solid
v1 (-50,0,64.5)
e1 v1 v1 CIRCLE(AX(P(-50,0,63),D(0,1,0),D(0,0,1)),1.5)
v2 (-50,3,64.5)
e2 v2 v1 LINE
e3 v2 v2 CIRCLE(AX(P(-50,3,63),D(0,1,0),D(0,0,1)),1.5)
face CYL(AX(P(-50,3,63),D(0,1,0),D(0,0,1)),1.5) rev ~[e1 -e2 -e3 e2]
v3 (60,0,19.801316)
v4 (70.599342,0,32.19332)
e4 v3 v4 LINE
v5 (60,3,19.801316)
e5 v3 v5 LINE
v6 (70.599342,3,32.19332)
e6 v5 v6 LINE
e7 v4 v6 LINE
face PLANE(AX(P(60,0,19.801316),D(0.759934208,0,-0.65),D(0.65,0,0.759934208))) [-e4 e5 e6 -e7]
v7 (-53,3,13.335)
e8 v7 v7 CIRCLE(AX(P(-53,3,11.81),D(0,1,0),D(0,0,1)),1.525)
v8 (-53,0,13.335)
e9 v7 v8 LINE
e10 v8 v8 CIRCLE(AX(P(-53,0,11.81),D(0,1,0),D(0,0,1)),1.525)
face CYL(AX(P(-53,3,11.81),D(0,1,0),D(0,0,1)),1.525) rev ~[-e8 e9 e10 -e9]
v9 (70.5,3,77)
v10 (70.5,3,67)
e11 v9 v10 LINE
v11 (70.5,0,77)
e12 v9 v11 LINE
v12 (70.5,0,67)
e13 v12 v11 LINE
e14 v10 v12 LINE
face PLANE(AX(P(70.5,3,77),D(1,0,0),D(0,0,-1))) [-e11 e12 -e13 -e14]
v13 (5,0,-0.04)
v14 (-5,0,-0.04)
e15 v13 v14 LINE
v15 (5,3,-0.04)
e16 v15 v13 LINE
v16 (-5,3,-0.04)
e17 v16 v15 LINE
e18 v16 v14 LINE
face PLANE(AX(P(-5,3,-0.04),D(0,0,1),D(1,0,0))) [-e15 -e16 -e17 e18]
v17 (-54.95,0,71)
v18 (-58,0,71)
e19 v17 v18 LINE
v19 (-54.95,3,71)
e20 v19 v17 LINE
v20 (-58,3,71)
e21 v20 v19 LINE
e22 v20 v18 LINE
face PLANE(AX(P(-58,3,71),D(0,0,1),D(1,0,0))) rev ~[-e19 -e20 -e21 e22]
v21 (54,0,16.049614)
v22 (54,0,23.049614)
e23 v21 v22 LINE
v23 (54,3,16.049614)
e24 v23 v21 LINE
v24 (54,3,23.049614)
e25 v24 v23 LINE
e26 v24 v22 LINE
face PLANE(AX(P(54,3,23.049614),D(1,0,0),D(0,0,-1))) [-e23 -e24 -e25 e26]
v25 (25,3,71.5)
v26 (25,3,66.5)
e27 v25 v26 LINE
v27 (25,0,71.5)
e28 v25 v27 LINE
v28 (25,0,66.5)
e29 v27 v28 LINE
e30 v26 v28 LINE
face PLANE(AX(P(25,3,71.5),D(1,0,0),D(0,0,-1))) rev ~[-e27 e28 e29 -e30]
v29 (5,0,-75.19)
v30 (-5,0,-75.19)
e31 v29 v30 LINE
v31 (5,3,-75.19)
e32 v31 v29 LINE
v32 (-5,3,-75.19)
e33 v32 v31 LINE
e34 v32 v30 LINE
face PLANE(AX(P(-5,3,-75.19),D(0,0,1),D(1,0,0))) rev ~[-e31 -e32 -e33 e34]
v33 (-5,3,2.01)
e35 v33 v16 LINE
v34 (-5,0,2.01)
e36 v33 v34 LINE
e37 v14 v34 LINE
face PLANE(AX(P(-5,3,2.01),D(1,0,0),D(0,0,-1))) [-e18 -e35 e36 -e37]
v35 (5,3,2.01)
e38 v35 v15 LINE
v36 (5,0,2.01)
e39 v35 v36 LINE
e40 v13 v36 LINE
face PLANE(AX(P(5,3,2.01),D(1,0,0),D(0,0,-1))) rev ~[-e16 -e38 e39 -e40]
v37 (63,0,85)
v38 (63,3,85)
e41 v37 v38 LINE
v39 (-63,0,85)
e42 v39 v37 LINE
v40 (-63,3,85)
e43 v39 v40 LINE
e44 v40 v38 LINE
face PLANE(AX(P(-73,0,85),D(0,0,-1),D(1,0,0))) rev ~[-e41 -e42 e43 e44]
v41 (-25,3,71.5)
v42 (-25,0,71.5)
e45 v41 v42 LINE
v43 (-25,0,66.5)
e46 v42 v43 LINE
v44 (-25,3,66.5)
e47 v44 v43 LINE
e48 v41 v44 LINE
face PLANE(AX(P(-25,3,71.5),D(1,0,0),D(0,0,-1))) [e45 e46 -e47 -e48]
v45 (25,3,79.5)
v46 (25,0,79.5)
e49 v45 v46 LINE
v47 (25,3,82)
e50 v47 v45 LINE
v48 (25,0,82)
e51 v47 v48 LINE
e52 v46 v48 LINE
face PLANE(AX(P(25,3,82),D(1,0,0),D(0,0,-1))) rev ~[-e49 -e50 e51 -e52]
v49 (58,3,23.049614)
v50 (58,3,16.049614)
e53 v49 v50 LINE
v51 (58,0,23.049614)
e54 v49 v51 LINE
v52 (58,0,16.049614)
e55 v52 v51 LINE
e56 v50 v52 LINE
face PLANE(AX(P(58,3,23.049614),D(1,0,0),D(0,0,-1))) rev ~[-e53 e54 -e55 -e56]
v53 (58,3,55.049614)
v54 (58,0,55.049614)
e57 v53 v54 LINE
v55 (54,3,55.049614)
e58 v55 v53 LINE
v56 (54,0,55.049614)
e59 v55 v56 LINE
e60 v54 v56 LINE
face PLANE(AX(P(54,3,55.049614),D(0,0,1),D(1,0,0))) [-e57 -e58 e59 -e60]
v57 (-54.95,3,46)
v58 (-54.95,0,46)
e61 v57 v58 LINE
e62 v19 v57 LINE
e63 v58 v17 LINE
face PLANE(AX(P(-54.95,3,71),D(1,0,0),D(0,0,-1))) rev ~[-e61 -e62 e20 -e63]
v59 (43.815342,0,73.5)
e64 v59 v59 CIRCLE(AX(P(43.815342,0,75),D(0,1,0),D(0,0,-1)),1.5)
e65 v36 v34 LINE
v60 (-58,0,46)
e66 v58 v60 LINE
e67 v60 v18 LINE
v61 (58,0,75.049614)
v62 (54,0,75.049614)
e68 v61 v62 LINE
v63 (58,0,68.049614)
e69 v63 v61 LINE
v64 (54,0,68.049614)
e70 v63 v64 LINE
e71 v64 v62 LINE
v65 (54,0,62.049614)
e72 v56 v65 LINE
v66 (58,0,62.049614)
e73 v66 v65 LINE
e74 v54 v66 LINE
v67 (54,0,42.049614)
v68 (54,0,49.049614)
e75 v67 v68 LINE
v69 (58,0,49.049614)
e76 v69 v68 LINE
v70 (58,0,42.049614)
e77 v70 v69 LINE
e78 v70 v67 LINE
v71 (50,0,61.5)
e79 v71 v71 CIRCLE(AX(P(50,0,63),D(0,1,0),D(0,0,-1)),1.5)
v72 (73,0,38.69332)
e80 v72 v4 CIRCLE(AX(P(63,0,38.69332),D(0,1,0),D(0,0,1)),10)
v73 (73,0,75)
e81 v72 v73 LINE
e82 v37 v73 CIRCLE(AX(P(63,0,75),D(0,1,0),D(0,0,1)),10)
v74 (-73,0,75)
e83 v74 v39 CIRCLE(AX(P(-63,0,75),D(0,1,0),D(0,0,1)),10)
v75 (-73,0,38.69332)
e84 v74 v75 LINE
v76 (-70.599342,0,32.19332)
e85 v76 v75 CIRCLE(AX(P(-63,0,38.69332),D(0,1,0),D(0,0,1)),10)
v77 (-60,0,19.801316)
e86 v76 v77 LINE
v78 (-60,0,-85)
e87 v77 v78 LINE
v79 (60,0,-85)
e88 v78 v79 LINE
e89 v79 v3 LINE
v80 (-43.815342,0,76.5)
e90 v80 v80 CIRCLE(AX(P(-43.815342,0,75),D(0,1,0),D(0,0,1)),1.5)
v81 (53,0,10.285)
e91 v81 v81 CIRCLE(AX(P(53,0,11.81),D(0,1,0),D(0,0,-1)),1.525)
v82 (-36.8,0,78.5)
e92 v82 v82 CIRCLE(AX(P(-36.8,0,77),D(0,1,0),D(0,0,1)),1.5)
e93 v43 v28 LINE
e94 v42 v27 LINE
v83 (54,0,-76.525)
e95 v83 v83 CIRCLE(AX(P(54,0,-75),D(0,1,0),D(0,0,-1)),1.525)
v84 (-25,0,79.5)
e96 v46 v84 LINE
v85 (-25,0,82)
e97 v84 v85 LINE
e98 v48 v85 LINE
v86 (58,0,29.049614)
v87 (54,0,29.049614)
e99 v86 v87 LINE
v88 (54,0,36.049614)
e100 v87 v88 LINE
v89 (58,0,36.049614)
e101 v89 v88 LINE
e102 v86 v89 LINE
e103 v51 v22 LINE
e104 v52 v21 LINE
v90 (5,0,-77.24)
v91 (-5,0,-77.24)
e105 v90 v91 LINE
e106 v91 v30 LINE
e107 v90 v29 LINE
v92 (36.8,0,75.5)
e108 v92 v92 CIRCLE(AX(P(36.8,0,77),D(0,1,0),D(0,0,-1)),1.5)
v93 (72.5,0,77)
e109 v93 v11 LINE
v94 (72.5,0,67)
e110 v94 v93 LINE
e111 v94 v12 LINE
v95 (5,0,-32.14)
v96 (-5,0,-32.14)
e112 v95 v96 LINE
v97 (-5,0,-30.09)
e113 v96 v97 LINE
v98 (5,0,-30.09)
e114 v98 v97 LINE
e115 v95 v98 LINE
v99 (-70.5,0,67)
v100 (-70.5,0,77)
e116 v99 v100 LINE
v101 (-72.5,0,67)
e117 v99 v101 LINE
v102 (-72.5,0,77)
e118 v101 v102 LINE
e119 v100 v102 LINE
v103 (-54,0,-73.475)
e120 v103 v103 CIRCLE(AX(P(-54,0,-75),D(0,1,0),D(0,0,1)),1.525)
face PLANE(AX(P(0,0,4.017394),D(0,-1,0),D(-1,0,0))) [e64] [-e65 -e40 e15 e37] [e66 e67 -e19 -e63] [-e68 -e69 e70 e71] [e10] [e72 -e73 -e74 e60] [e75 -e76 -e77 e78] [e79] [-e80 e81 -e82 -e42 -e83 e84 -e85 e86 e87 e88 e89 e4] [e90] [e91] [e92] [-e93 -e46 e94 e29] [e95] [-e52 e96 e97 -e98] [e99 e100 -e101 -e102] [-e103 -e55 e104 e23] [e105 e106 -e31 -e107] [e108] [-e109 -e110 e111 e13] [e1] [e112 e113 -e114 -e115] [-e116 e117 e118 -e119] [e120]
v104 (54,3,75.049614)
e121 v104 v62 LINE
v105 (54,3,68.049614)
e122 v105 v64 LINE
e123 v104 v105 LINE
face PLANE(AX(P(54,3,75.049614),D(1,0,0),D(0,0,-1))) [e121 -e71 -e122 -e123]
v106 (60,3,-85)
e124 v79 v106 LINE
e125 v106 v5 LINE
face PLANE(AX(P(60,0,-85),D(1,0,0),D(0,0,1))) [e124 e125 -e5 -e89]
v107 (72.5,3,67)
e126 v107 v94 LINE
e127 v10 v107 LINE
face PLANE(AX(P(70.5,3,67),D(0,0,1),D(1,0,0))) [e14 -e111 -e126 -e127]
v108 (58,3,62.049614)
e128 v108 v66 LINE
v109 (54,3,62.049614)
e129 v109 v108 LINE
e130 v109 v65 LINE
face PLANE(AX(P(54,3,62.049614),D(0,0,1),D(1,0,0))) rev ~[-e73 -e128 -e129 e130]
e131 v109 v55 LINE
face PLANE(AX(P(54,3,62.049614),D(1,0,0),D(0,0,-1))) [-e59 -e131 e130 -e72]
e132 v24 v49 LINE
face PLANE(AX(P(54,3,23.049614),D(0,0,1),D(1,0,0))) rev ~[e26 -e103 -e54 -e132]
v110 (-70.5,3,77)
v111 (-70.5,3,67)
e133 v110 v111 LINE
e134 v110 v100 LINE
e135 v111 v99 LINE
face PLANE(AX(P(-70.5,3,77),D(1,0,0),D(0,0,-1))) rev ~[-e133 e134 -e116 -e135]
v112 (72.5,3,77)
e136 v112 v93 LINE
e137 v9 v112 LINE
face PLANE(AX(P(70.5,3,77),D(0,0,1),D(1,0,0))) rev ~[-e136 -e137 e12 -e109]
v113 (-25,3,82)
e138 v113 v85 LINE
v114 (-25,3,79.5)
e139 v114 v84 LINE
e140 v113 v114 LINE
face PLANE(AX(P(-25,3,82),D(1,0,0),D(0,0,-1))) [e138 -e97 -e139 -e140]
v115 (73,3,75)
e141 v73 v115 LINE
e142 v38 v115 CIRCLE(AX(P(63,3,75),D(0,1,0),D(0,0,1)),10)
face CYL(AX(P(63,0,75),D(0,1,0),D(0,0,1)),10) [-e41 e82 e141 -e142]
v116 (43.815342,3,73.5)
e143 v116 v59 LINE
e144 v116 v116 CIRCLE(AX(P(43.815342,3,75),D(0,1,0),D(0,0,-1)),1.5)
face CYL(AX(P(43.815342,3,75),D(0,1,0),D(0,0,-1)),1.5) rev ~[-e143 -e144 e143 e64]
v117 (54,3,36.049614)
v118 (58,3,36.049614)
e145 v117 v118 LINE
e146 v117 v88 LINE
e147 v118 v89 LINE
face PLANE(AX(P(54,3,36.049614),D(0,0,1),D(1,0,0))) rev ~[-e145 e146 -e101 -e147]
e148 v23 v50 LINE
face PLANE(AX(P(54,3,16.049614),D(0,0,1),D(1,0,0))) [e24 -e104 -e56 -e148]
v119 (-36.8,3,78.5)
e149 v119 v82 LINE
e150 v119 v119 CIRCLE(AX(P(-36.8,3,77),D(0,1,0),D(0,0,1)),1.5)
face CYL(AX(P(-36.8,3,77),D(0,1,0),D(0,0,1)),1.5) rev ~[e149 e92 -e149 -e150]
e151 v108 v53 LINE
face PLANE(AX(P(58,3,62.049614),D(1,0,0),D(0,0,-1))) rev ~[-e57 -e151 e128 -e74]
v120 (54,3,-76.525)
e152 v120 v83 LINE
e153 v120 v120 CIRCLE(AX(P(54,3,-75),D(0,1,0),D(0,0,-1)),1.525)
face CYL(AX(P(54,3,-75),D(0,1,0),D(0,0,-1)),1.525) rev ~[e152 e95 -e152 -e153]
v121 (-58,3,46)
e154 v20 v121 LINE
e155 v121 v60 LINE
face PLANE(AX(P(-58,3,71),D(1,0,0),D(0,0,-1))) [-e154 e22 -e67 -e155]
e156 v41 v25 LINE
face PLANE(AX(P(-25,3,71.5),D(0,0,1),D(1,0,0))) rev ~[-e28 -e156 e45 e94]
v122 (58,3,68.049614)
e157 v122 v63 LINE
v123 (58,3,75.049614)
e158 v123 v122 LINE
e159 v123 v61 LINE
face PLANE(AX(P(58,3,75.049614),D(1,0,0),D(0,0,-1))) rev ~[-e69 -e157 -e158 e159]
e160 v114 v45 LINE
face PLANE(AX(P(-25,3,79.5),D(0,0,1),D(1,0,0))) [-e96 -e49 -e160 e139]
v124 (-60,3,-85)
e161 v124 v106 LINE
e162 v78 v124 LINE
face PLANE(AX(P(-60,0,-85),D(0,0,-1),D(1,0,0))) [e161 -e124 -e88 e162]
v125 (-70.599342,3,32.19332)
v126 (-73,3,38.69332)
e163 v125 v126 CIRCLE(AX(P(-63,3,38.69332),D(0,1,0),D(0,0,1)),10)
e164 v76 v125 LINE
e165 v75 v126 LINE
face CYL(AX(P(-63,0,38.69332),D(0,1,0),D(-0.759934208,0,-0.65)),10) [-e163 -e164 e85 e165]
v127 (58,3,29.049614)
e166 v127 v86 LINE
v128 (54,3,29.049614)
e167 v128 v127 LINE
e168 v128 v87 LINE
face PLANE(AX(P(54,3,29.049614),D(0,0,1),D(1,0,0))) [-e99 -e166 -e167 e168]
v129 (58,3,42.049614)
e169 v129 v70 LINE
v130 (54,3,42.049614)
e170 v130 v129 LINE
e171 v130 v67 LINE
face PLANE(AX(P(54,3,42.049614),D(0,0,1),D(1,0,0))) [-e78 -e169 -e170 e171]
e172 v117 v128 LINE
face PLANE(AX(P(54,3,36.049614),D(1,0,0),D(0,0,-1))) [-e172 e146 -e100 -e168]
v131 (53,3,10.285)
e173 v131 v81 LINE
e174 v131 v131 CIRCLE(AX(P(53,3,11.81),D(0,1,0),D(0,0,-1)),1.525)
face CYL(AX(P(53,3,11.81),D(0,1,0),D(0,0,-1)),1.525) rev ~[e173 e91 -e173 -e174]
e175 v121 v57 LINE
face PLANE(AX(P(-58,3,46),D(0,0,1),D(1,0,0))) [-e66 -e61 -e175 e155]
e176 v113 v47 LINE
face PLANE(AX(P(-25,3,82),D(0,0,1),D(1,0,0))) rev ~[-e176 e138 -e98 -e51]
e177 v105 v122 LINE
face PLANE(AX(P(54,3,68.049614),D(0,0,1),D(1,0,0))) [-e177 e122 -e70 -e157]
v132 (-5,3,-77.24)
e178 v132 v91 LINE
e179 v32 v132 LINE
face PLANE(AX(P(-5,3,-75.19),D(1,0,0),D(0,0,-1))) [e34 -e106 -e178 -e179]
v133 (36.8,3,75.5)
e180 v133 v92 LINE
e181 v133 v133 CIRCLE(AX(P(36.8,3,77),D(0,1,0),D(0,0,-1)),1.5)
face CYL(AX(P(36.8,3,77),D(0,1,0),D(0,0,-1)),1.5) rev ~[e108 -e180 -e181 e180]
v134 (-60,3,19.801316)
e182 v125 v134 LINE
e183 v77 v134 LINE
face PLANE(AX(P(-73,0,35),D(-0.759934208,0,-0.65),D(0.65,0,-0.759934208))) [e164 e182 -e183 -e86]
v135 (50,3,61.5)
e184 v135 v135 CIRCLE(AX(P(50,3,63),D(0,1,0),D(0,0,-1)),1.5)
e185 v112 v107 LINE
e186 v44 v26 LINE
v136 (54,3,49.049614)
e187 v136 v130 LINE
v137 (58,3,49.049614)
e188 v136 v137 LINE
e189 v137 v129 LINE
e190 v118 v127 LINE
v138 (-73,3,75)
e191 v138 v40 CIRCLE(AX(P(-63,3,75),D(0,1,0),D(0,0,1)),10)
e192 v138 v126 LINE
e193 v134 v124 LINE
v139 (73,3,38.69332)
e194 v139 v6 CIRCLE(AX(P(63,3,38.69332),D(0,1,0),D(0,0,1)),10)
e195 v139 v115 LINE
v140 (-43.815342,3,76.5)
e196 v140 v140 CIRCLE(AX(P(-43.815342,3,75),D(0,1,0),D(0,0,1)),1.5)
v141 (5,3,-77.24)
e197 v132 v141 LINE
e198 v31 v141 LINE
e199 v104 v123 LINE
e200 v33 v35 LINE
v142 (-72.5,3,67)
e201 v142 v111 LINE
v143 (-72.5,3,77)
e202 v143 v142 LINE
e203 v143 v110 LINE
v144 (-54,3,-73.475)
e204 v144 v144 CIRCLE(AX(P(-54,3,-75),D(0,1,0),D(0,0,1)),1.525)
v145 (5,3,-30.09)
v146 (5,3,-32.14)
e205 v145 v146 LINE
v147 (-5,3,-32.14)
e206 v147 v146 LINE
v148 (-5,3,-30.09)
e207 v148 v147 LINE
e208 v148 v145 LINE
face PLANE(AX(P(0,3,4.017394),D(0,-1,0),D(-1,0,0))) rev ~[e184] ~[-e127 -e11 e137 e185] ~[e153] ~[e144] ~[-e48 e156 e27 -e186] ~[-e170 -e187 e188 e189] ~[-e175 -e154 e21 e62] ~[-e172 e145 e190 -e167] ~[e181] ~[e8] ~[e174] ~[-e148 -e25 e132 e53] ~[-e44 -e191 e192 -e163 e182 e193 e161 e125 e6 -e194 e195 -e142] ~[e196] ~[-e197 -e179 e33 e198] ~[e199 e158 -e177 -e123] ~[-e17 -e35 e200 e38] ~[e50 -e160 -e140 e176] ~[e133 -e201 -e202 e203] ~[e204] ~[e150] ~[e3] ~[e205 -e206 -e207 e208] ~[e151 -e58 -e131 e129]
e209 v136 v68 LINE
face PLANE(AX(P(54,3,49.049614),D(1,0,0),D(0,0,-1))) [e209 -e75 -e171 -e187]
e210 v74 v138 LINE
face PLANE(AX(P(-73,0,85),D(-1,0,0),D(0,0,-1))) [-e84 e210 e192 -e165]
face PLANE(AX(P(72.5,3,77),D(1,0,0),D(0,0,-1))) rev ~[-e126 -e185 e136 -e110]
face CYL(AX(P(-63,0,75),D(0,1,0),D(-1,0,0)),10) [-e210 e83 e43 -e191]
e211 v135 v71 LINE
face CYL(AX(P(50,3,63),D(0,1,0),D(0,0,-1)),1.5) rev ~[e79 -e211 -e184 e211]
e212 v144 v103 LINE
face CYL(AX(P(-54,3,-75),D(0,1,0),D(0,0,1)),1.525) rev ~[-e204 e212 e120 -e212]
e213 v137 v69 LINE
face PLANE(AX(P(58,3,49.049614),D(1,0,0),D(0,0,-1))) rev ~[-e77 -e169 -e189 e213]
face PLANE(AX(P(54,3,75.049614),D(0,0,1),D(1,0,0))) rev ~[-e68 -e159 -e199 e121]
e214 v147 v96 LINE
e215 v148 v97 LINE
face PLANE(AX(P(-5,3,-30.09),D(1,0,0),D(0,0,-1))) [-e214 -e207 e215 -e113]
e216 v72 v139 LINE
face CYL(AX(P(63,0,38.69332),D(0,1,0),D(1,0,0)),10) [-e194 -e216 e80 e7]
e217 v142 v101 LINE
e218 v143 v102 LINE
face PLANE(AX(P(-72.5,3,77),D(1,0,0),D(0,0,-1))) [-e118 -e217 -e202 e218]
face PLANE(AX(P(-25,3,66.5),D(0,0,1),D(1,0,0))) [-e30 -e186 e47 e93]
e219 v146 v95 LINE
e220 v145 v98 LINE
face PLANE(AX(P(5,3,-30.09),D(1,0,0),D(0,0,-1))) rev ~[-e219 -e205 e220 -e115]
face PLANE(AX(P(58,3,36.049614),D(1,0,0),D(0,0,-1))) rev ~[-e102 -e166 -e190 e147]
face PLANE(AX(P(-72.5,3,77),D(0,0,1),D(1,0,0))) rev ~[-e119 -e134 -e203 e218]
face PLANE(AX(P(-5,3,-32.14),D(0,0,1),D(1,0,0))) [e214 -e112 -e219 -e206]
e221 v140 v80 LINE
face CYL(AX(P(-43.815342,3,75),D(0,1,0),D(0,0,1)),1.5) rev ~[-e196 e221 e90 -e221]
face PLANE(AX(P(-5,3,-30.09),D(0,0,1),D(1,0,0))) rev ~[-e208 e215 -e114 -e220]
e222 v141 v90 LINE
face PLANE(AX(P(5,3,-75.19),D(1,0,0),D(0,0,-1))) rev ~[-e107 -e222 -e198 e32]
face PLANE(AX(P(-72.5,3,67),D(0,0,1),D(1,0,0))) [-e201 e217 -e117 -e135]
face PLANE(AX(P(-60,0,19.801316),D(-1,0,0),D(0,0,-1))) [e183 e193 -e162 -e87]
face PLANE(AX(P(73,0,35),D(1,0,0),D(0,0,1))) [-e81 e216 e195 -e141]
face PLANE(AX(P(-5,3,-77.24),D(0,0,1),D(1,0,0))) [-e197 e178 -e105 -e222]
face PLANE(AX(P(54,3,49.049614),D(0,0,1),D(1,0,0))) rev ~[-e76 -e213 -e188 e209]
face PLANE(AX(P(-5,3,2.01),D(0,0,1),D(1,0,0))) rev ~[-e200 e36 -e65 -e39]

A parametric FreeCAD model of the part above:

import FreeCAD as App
import Part
import Sketcher

V = App.Vector


def edges_at(feature, points):
    """Names of the edges that pass closest to the given points."""
    edges = feature.Shape.Edges
    near = lambda p: min(range(len(edges)), key=lambda i: edges[i].distToShape(Part.Vertex(*p))[0])
    return sorted({f"Edge{near(p) + 1}" for p in points})

doc = App.newDocument("Part")
params = doc.addObject("Spreadsheet::Sheet", "Params")
for row, (alias, value) in enumerate([
    ("sketch1_width", "146 mm"),
    ("sketch1_width2", "120 mm"),
    ("sketch1_height", "50 mm"),
    ("sketch1_length", "20 mm"),
    ("pad1_length", "3 mm"),
    ("sketch2_diameter", "3.05 mm"),
    ("sketch3_width", "10 mm"),
    ("sketch3_height", "2.05 mm"),
    ("sketch4_diameter", "3 mm"),
    ("pocket3_length", "3 mm"),
    ("sketch5_diameter", "3 mm"),
    ("sketch5_width", "50 mm"),
    ("sketch5_height", "5 mm"),
    ("pocket4_length", "3 mm"),
    ("sketch6_width", "4 mm"),
    ("sketch6_height", "7 mm"),
    ("pocket5_length", "10 mm"),
    ("sketch7_width", "50 mm"),
    ("sketch7_height", "25 mm"),
    ("sketch7_height2", "2.5 mm"),
    ("sketch7_width2", "3.05 mm"),
    ("pocket6_length", "10 mm"),
    ("fillet_radius", "10 mm"),
    ("sketch8_width", "2 mm"),
    ("sketch8_height", "10 mm"),
    ("pocket7_length", "10 mm"),
], start=1):
    params.set(f"A{row}", alias)
    params.set(f"B{row}", "=" + value)
    params.setAlias(f"B{row}", alias)

body = doc.addObject("PartDesign::Body", "Body")

sketch1 = doc.addObject("Sketcher::SketchObject", "Sketch")
body.addObject(sketch1)
sketch1.AttachmentSupport = (doc.XZ_Plane, [""])
sketch1.MapMode = "FlatFace"
sketch1.addGeometry(Part.LineSegment(V(-60, 20, 0), V(-73, 35, 0)), False)
sketch1.addGeometry(Part.LineSegment(V(-73, 35, 0), V(-73, 85, 0)), False)
sketch1.addGeometry(Part.LineSegment(V(-73, 85, 0), V(73, 85, 0)), False)
sketch1.addGeometry(Part.LineSegment(V(73, 85, 0), V(73, 35, 0)), False)
sketch1.addGeometry(Part.LineSegment(V(73, 35, 0), V(60, 20, 0)), False)
sketch1.addGeometry(Part.LineSegment(V(60, 20, 0), V(60, -85, 0)), False)
sketch1.addGeometry(Part.LineSegment(V(60, -85, 0), V(-60, -85, 0)), False)
sketch1.addGeometry(Part.LineSegment(V(-60, -85, 0), V(-60, 20, 0)), False)
sketch1.addConstraint(Sketcher.Constraint("Coincident", 0, 2, 1, 1))
sketch1.addConstraint(Sketcher.Constraint("Coincident", 1, 2, 2, 1))
sketch1.addConstraint(Sketcher.Constraint("Coincident", 2, 2, 3, 1))
sketch1.addConstraint(Sketcher.Constraint("Coincident", 3, 2, 4, 1))
sketch1.addConstraint(Sketcher.Constraint("Coincident", 4, 2, 5, 1))
sketch1.addConstraint(Sketcher.Constraint("Coincident", 5, 2, 6, 1))
sketch1.addConstraint(Sketcher.Constraint("Coincident", 6, 2, 7, 1))
sketch1.addConstraint(Sketcher.Constraint("Coincident", 7, 2, 0, 1))
sketch1.addConstraint(Sketcher.Constraint("Vertical", 1))
sketch1.addConstraint(Sketcher.Constraint("Horizontal", 2))
sketch1.addConstraint(Sketcher.Constraint("Vertical", 3))
sketch1.addConstraint(Sketcher.Constraint("Vertical", 5))
sketch1.addConstraint(Sketcher.Constraint("Horizontal", 6))
sketch1.addConstraint(Sketcher.Constraint("Vertical", 7))
sketch1.addConstraint(Sketcher.Constraint("Symmetric", 0, 2, 3, 2, -2))
sketch1.addConstraint(Sketcher.Constraint("Symmetric", 4, 2, 7, 2, -2))
sketch1.addConstraint(Sketcher.Constraint("DistanceX", 2, 1, 2, 2, 146.0))
sketch1.addConstraint(Sketcher.Constraint("DistanceX", 6, 2, 6, 1, 120.0))
sketch1.addConstraint(Sketcher.Constraint("DistanceY", 1, 1, 1, 2, 50.0))
sketch1.addConstraint(Sketcher.Constraint("Distance", 0, 20.0))
sketch1.addConstraint(Sketcher.Constraint("DistanceY", -1, 1, 0, 2, 35.0))
sketch1.addConstraint(Sketcher.Constraint("DistanceY", 5, 2, -1, 1, 85.0))
sketch1.setExpression("Constraints[16]", "Params.sketch1_width")
sketch1.setExpression("Constraints[17]", "Params.sketch1_width2")
sketch1.setExpression("Constraints[18]", "Params.sketch1_height")
sketch1.setExpression("Constraints[19]", "Params.sketch1_length")
pad1 = doc.addObject("PartDesign::Pad", "Pad")
body.addObject(pad1)
pad1.Profile = sketch1
pad1.setExpression("Length", "Params.pad1_length")
pad1.Reversed = True

sketch2 = doc.addObject("Sketcher::SketchObject", "Sketch001")
body.addObject(sketch2)
sketch2.AttachmentSupport = (doc.XZ_Plane, [""])
sketch2.MapMode = "FlatFace"
sketch2.AttachmentOffset = App.Placement(V(0, 0, -3), App.Rotation())
sketch2.addGeometry(Part.Circle(V(-53, 11.8, 0), V(0, 0, 1), 1.5), False)
sketch2.addGeometry(Part.Circle(V(-54, -75, 0), V(0, 0, 1), 1.5), False)
sketch2.addGeometry(Part.Circle(V(53, 11.8, 0), V(0, 0, 1), 1.5), False)
sketch2.addGeometry(Part.Circle(V(54, -75, 0), V(0, 0, 1), 1.5), False)
sketch2.addConstraint(Sketcher.Constraint("Equal", 0, 1))
sketch2.addConstraint(Sketcher.Constraint("Equal", 1, 2))
sketch2.addConstraint(Sketcher.Constraint("Equal", 2, 3))
sketch2.addConstraint(Sketcher.Constraint("Symmetric", 0, 3, 2, 3, -2))
sketch2.addConstraint(Sketcher.Constraint("Symmetric", 1, 3, 3, 3, -2))
sketch2.addConstraint(Sketcher.Constraint("Diameter", 0, 3.05))
sketch2.addConstraint(Sketcher.Constraint("DistanceX", 0, 3, -1, 1, 53.0))
sketch2.addConstraint(Sketcher.Constraint("DistanceX", 1, 3, -1, 1, 54.0))
sketch2.addConstraint(Sketcher.Constraint("DistanceY", 1, 3, -1, 1, 75.0))
sketch2.addConstraint(Sketcher.Constraint("DistanceY", -1, 1, 0, 3, 11.81))
sketch2.setExpression("Constraints[5]", "Params.sketch2_diameter")
pocket1 = doc.addObject("PartDesign::Pocket", "Pocket")
body.addObject(pocket1)
pocket1.Profile = sketch2
pocket1.Type = "ThroughAll"
pocket1.Reversed = True

sketch3 = doc.addObject("Sketcher::SketchObject", "Sketch002")
body.addObject(sketch3)
sketch3.AttachmentSupport = (doc.XZ_Plane, [""])
sketch3.MapMode = "FlatFace"
sketch3.AttachmentOffset = App.Placement(V(0, 0, -3), App.Rotation())
sketch3.addGeometry(Part.LineSegment(V(-5, -32.1, 0), V(-5, -30.1, 0)), False)
sketch3.addGeometry(Part.LineSegment(V(-5, -30.1, 0), V(5, -30.1, 0)), False)
sketch3.addGeometry(Part.LineSegment(V(5, -30.1, 0), V(5, -32.1, 0)), False)
sketch3.addGeometry(Part.LineSegment(V(5, -32.1, 0), V(-5, -32.1, 0)), False)
sketch3.addGeometry(Part.LineSegment(V(-5, 0, 0), V(-5, 2, 0)), False)
sketch3.addGeometry(Part.LineSegment(V(-5, 2, 0), V(5, 2, 0)), False)
sketch3.addGeometry(Part.LineSegment(V(5, 2, 0), V(5, 0, 0)), False)
sketch3.addGeometry(Part.LineSegment(V(5, 0, 0), V(-5, 0, 0)), False)
sketch3.addGeometry(Part.LineSegment(V(-5, -77.2, 0), V(-5, -75.2, 0)), False)
sketch3.addGeometry(Part.LineSegment(V(-5, -75.2, 0), V(5, -75.2, 0)), False)
sketch3.addGeometry(Part.LineSegment(V(5, -75.2, 0), V(5, -77.2, 0)), False)
sketch3.addGeometry(Part.LineSegment(V(5, -77.2, 0), V(-5, -77.2, 0)), False)
sketch3.addConstraint(Sketcher.Constraint("Coincident", 0, 2, 1, 1))
sketch3.addConstraint(Sketcher.Constraint("Coincident", 1, 2, 2, 1))
sketch3.addConstraint(Sketcher.Constraint("Coincident", 2, 2, 3, 1))
sketch3.addConstraint(Sketcher.Constraint("Coincident", 3, 2, 0, 1))
sketch3.addConstraint(Sketcher.Constraint("Coincident", 4, 2, 5, 1))
sketch3.addConstraint(Sketcher.Constraint("Coincident", 5, 2, 6, 1))
sketch3.addConstraint(Sketcher.Constraint("Coincident", 6, 2, 7, 1))
sketch3.addConstraint(Sketcher.Constraint("Coincident", 7, 2, 4, 1))
sketch3.addConstraint(Sketcher.Constraint("Coincident", 8, 2, 9, 1))
sketch3.addConstraint(Sketcher.Constraint("Coincident", 9, 2, 10, 1))
sketch3.addConstraint(Sketcher.Constraint("Coincident", 10, 2, 11, 1))
sketch3.addConstraint(Sketcher.Constraint("Coincident", 11, 2, 8, 1))
sketch3.addConstraint(Sketcher.Constraint("Vertical", 0))
sketch3.addConstraint(Sketcher.Constraint("Horizontal", 1))
sketch3.addConstraint(Sketcher.Constraint("Vertical", 2))
sketch3.addConstraint(Sketcher.Constraint("Horizontal", 3))
sketch3.addConstraint(Sketcher.Constraint("Vertical", 4))
sketch3.addConstraint(Sketcher.Constraint("Horizontal", 5))
sketch3.addConstraint(Sketcher.Constraint("Vertical", 6))
sketch3.addConstraint(Sketcher.Constraint("Horizontal", 7))
sketch3.addConstraint(Sketcher.Constraint("Vertical", 8))
sketch3.addConstraint(Sketcher.Constraint("Horizontal", 9))
sketch3.addConstraint(Sketcher.Constraint("Vertical", 10))
sketch3.addConstraint(Sketcher.Constraint("Horizontal", 11))
sketch3.addConstraint(Sketcher.Constraint("Vertical", 3, 2, 4, 2))
sketch3.addConstraint(Sketcher.Constraint("Vertical", 2, 2, 5, 2))
sketch3.addConstraint(Sketcher.Constraint("Vertical", 7, 2, 8, 2))
sketch3.addConstraint(Sketcher.Constraint("Vertical", 6, 2, 9, 2))
sketch3.addConstraint(Sketcher.Constraint("Equal", 2, 4))
sketch3.addConstraint(Sketcher.Constraint("Equal", 6, 8))
sketch3.addConstraint(Sketcher.Constraint("DistanceX", 1, 1, 1, 2, 10.0))
sketch3.addConstraint(Sketcher.Constraint("DistanceX", 0, 2, -1, 1, 5.0))
sketch3.addConstraint(Sketcher.Constraint("DistanceY", 0, 1, 0, 2, 2.05))
sketch3.addConstraint(Sketcher.Constraint("DistanceY", 0, 2, 4, 2, 32.1))
sketch3.addConstraint(Sketcher.Constraint("DistanceY", 8, 2, 0, 2, 45.1))
sketch3.addConstraint(Sketcher.Constraint("DistanceY", 0, 2, -1, 1, 30.09))
sketch3.setExpression("Constraints[30]", "Params.sketch3_width")
sketch3.setExpression("Constraints[32]", "Params.sketch3_height")
pocket2 = doc.addObject("PartDesign::Pocket", "Pocket001")
body.addObject(pocket2)
pocket2.Profile = sketch3
pocket2.Type = "ThroughAll"
pocket2.Reversed = True

sketch4 = doc.addObject("Sketcher::SketchObject", "Sketch003")
body.addObject(sketch4)
sketch4.AttachmentSupport = (doc.XZ_Plane, [""])
sketch4.MapMode = "FlatFace"
sketch4.AttachmentOffset = App.Placement(V(0, 0, -3), App.Rotation())
sketch4.addGeometry(Part.Circle(V(-50, 63, 0), V(0, 0, 1), 1.5), False)
sketch4.addGeometry(Part.Circle(V(-43.8, 75, 0), V(0, 0, 1), 1.5), False)
sketch4.addGeometry(Part.Circle(V(43.8, 75, 0), V(0, 0, 1), 1.5), False)
sketch4.addGeometry(Part.Circle(V(50, 63, 0), V(0, 0, 1), 1.5), False)
sketch4.addConstraint(Sketcher.Constraint("Equal", 0, 1))
sketch4.addConstraint(Sketcher.Constraint("Equal", 1, 2))
sketch4.addConstraint(Sketcher.Constraint("Equal", 2, 3))
sketch4.addConstraint(Sketcher.Constraint("Symmetric", 1, 3, 2, 3, -2))
sketch4.addConstraint(Sketcher.Constraint("Symmetric", 0, 3, 3, 3, -2))
sketch4.addConstraint(Sketcher.Constraint("Diameter", 0, 3.0))
sketch4.addConstraint(Sketcher.Constraint("DistanceX", 0, 3, -1, 1, 50.0))
sketch4.addConstraint(Sketcher.Constraint("DistanceY", -1, 1, 0, 3, 63.0))
sketch4.addConstraint(Sketcher.Constraint("DistanceY", -1, 1, 1, 3, 75.0))
sketch4.addConstraint(Sketcher.Constraint("DistanceX", 1, 3, -1, 1, 43.815342))
sketch4.setExpression("Constraints[5]", "Params.sketch4_diameter")
pocket3 = doc.addObject("PartDesign::Pocket", "Pocket002")
body.addObject(pocket3)
pocket3.Profile = sketch4
pocket3.setExpression("Length", "Params.pocket3_length")
pocket3.Reversed = True

sketch5 = doc.addObject("Sketcher::SketchObject", "Sketch004")
body.addObject(sketch5)
sketch5.AttachmentSupport = (doc.XZ_Plane, [""])
sketch5.MapMode = "FlatFace"
sketch5.AttachmentOffset = App.Placement(V(0, 0, -3), App.Rotation())
sketch5.addGeometry(Part.Circle(V(-36.8, 77, 0), V(0, 0, 1), 1.5), False)
sketch5.addGeometry(Part.Circle(V(36.8, 77, 0), V(0, 0, 1), 1.5), False)
sketch5.addGeometry(Part.LineSegment(V(-25, 66.5, 0), V(-25, 71.5, 0)), False)
sketch5.addGeometry(Part.LineSegment(V(-25, 71.5, 0), V(25, 71.5, 0)), False)
sketch5.addGeometry(Part.LineSegment(V(25, 71.5, 0), V(25, 66.5, 0)), False)
sketch5.addGeometry(Part.LineSegment(V(25, 66.5, 0), V(-25, 66.5, 0)), False)
sketch5.addConstraint(Sketcher.Constraint("Coincident", 2, 2, 3, 1))
sketch5.addConstraint(Sketcher.Constraint("Coincident", 3, 2, 4, 1))
sketch5.addConstraint(Sketcher.Constraint("Coincident", 4, 2, 5, 1))
sketch5.addConstraint(Sketcher.Constraint("Coincident", 5, 2, 2, 1))
sketch5.addConstraint(Sketcher.Constraint("Vertical", 2))
sketch5.addConstraint(Sketcher.Constraint("Horizontal", 3))
sketch5.addConstraint(Sketcher.Constraint("Vertical", 4))
sketch5.addConstraint(Sketcher.Constraint("Horizontal", 5))
sketch5.addConstraint(Sketcher.Constraint("Equal", 0, 1))
sketch5.addConstraint(Sketcher.Constraint("Symmetric", 0, 3, 1, 3, -2))
sketch5.addConstraint(Sketcher.Constraint("Diameter", 0, 3.0))
sketch5.addConstraint(Sketcher.Constraint("DistanceX", 3, 1, 3, 2, 50.0))
sketch5.addConstraint(Sketcher.Constraint("DistanceY", 2, 1, 2, 2, 5.0))
sketch5.addConstraint(Sketcher.Constraint("DistanceY", -1, 1, 0, 3, 77.0))
sketch5.addConstraint(Sketcher.Constraint("DistanceX", 2, 2, -1, 1, 25.0))
sketch5.addConstraint(Sketcher.Constraint("DistanceX", 0, 3, -1, 1, 36.8))
sketch5.addConstraint(Sketcher.Constraint("DistanceY", -1, 1, 2, 2, 71.5))
sketch5.setExpression("Constraints[10]", "Params.sketch5_diameter")
sketch5.setExpression("Constraints[11]", "Params.sketch5_width")
sketch5.setExpression("Constraints[12]", "Params.sketch5_height")
pocket4 = doc.addObject("PartDesign::Pocket", "Pocket003")
body.addObject(pocket4)
pocket4.Profile = sketch5
pocket4.setExpression("Length", "Params.pocket4_length")
pocket4.Reversed = True

sketch6 = doc.addObject("Sketcher::SketchObject", "Sketch005")
body.addObject(sketch6)
sketch6.AttachmentSupport = (doc.XZ_Plane, [""])
sketch6.MapMode = "FlatFace"
sketch6.AttachmentOffset = App.Placement(V(0, 0, -3), App.Rotation())
sketch6.addGeometry(Part.LineSegment(V(54, 29, 0), V(54, 36, 0)), False)
sketch6.addGeometry(Part.LineSegment(V(54, 36, 0), V(58, 36, 0)), False)
sketch6.addGeometry(Part.LineSegment(V(58, 36, 0), V(58, 29, 0)), False)
sketch6.addGeometry(Part.LineSegment(V(58, 29, 0), V(54, 29, 0)), False)
sketch6.addGeometry(Part.LineSegment(V(54, 16, 0), V(54, 23, 0)), False)
sketch6.addGeometry(Part.LineSegment(V(54, 23, 0), V(58, 23, 0)), False)
sketch6.addGeometry(Part.LineSegment(V(58, 23, 0), V(58, 16, 0)), False)
sketch6.addGeometry(Part.LineSegment(V(58, 16, 0), V(54, 16, 0)), False)
sketch6.addGeometry(Part.LineSegment(V(54, 42, 0), V(54, 49, 0)), False)
sketch6.addGeometry(Part.LineSegment(V(54, 49, 0), V(58, 49, 0)), False)
sketch6.addGeometry(Part.LineSegment(V(58, 49, 0), V(58, 42, 0)), False)
sketch6.addGeometry(Part.LineSegment(V(58, 42, 0), V(54, 42, 0)), False)
sketch6.addGeometry(Part.LineSegment(V(54, 55, 0), V(54, 62, 0)), False)
sketch6.addGeometry(Part.LineSegment(V(54, 62, 0), V(58, 62, 0)), False)
sketch6.addGeometry(Part.LineSegment(V(58, 62, 0), V(58, 55, 0)), False)
sketch6.addGeometry(Part.LineSegment(V(58, 55, 0), V(54, 55, 0)), False)
sketch6.addGeometry(Part.LineSegment(V(54, 68, 0), V(54, 75, 0)), False)
sketch6.addGeometry(Part.LineSegment(V(54, 75, 0), V(58, 75, 0)), False)
sketch6.addGeometry(Part.LineSegment(V(58, 75, 0), V(58, 68, 0)), False)
sketch6.addGeometry(Part.LineSegment(V(58, 68, 0), V(54, 68, 0)), False)
sketch6.addConstraint(Sketcher.Constraint("Coincident", 0, 2, 1, 1))
sketch6.addConstraint(Sketcher.Constraint("Coincident", 1, 2, 2, 1))
sketch6.addConstraint(Sketcher.Constraint("Coincident", 2, 2, 3, 1))
sketch6.addConstraint(Sketcher.Constraint("Coincident", 3, 2, 0, 1))
sketch6.addConstraint(Sketcher.Constraint("Coincident", 4, 2, 5, 1))
sketch6.addConstraint(Sketcher.Constraint("Coincident", 5, 2, 6, 1))
sketch6.addConstraint(Sketcher.Constraint("Coincident", 6, 2, 7, 1))
sketch6.addConstraint(Sketcher.Constraint("Coincident", 7, 2, 4, 1))
sketch6.addConstraint(Sketcher.Constraint("Coincident", 8, 2, 9, 1))
sketch6.addConstraint(Sketcher.Constraint("Coincident", 9, 2, 10, 1))
sketch6.addConstraint(Sketcher.Constraint("Coincident", 10, 2, 11, 1))
sketch6.addConstraint(Sketcher.Constraint("Coincident", 11, 2, 8, 1))
sketch6.addConstraint(Sketcher.Constraint("Coincident", 12, 2, 13, 1))
sketch6.addConstraint(Sketcher.Constraint("Coincident", 13, 2, 14, 1))
sketch6.addConstraint(Sketcher.Constraint("Coincident", 14, 2, 15, 1))
sketch6.addConstraint(Sketcher.Constraint("Coincident", 15, 2, 12, 1))
sketch6.addConstraint(Sketcher.Constraint("Coincident", 16, 2, 17, 1))
sketch6.addConstraint(Sketcher.Constraint("Coincident", 17, 2, 18, 1))
sketch6.addConstraint(Sketcher.Constraint("Coincident", 18, 2, 19, 1))
sketch6.addConstraint(Sketcher.Constraint("Coincident", 19, 2, 16, 1))
sketch6.addConstraint(Sketcher.Constraint("Vertical", 0))
sketch6.addConstraint(Sketcher.Constraint("Horizontal", 1))
sketch6.addConstraint(Sketcher.Constraint("Vertical", 2))
sketch6.addConstraint(Sketcher.Constraint("Horizontal", 3))
sketch6.addConstraint(Sketcher.Constraint("Vertical", 4))
sketch6.addConstraint(Sketcher.Constraint("Horizontal", 5))
sketch6.addConstraint(Sketcher.Constraint("Vertical", 6))
sketch6.addConstraint(Sketcher.Constraint("Horizontal", 7))
sketch6.addConstraint(Sketcher.Constraint("Vertical", 8))
sketch6.addConstraint(Sketcher.Constraint("Horizontal", 9))
sketch6.addConstraint(Sketcher.Constraint("Vertical", 10))
sketch6.addConstraint(Sketcher.Constraint("Horizontal", 11))
sketch6.addConstraint(Sketcher.Constraint("Vertical", 12))
sketch6.addConstraint(Sketcher.Constraint("Horizontal", 13))
sketch6.addConstraint(Sketcher.Constraint("Vertical", 14))
sketch6.addConstraint(Sketcher.Constraint("Horizontal", 15))
sketch6.addConstraint(Sketcher.Constraint("Vertical", 16))
sketch6.addConstraint(Sketcher.Constraint("Horizontal", 17))
sketch6.addConstraint(Sketcher.Constraint("Vertical", 18))
sketch6.addConstraint(Sketcher.Constraint("Horizontal", 19))
sketch6.addConstraint(Sketcher.Constraint("Vertical", 3, 2, 4, 2))
sketch6.addConstraint(Sketcher.Constraint("Vertical", 2, 2, 5, 2))
sketch6.addConstraint(Sketcher.Constraint("Vertical", 7, 2, 8, 2))
sketch6.addConstraint(Sketcher.Constraint("Vertical", 6, 2, 9, 2))
sketch6.addConstraint(Sketcher.Constraint("Vertical", 11, 2, 12, 2))
sketch6.addConstraint(Sketcher.Constraint("Vertical", 10, 2, 13, 2))
sketch6.addConstraint(Sketcher.Constraint("Vertical", 15, 2, 16, 2))
sketch6.addConstraint(Sketcher.Constraint("Vertical", 14, 2, 17, 2))
sketch6.addConstraint(Sketcher.Constraint("Equal", 2, 4))
sketch6.addConstraint(Sketcher.Constraint("Equal", 6, 8))
sketch6.addConstraint(Sketcher.Constraint("Equal", 10, 12))
sketch6.addConstraint(Sketcher.Constraint("Equal", 14, 16))
sketch6.addConstraint(Sketcher.Constraint("DistanceX", 1, 1, 1, 2, 4.0))
sketch6.addConstraint(Sketcher.Constraint("DistanceY", 0, 1, 0, 2, 7.0))
sketch6.addConstraint(Sketcher.Constraint("DistanceX", -1, 1, 0, 2, 54.0))
sketch6.addConstraint(Sketcher.Constraint("DistanceY", 4, 2, 3, 2, 6.0))
sketch6.addConstraint(Sketcher.Constraint("DistanceY", 0, 2, 8, 2, 13.0))
sketch6.addConstraint(Sketcher.Constraint("DistanceY", 8, 2, 12, 2, 13.0))
sketch6.addConstraint(Sketcher.Constraint("DistanceY", 12, 2, 16, 2, 13.0))
sketch6.addConstraint(Sketcher.Constraint("DistanceY", -1, 1, 0, 2, 36.049614))
sketch6.setExpression("Constraints[52]", "Params.sketch6_width")
sketch6.setExpression("Constraints[53]", "Params.sketch6_height")
pocket5 = doc.addObject("PartDesign::Pocket", "Pocket004")
body.addObject(pocket5)
pocket5.Profile = sketch6
pocket5.setExpression("Length", "Params.pocket5_length")
pocket5.Reversed = True

sketch7 = doc.addObject("Sketcher::SketchObject", "Sketch006")
body.addObject(sketch7)
sketch7.AttachmentSupport = (doc.XZ_Plane, [""])
sketch7.MapMode = "FlatFace"
sketch7.AttachmentOffset = App.Placement(V(0, 0, -3), App.Rotation())
sketch7.addGeometry(Part.LineSegment(V(-25, 79.5, 0), V(-25, 82, 0)), False)
sketch7.addGeometry(Part.LineSegment(V(-25, 82, 0), V(25, 82, 0)), False)
sketch7.addGeometry(Part.LineSegment(V(25, 82, 0), V(25, 79.5, 0)), False)
sketch7.addGeometry(Part.LineSegment(V(25, 79.5, 0), V(-25, 79.5, 0)), False)
sketch7.addGeometry(Part.LineSegment(V(-58, 46, 0), V(-58, 71, 0)), False)
sketch7.addGeometry(Part.LineSegment(V(-58, 71, 0), V(-55, 71, 0)), False)
sketch7.addGeometry(Part.LineSegment(V(-55, 71, 0), V(-55, 46, 0)), False)
sketch7.addGeometry(Part.LineSegment(V(-55, 46, 0), V(-58, 46, 0)), False)
sketch7.addConstraint(Sketcher.Constraint("Coincident", 0, 2, 1, 1))
sketch7.addConstraint(Sketcher.Constraint("Coincident", 1, 2, 2, 1))
sketch7.addConstraint(Sketcher.Constraint("Coincident", 2, 2, 3, 1))
sketch7.addConstraint(Sketcher.Constraint("Coincident", 3, 2, 0, 1))
sketch7.addConstraint(Sketcher.Constraint("Coincident", 4, 2, 5, 1))
sketch7.addConstraint(Sketcher.Constraint("Coincident", 5, 2, 6, 1))
sketch7.addConstraint(Sketcher.Constraint("Coincident", 6, 2, 7, 1))
sketch7.addConstraint(Sketcher.Constraint("Coincident", 7, 2, 4, 1))
sketch7.addConstraint(Sketcher.Constraint("Vertical", 0))
sketch7.addConstraint(Sketcher.Constraint("Horizontal", 1))
sketch7.addConstraint(Sketcher.Constraint("Vertical", 2))
sketch7.addConstraint(Sketcher.Constraint("Horizontal", 3))
sketch7.addConstraint(Sketcher.Constraint("Vertical", 4))
sketch7.addConstraint(Sketcher.Constraint("Horizontal", 5))
sketch7.addConstraint(Sketcher.Constraint("Vertical", 6))
sketch7.addConstraint(Sketcher.Constraint("Horizontal", 7))
sketch7.addConstraint(Sketcher.Constraint("DistanceX", 1, 1, 1, 2, 50.0))
sketch7.addConstraint(Sketcher.Constraint("DistanceY", 4, 1, 4, 2, 25.0))
sketch7.addConstraint(Sketcher.Constraint("DistanceY", 0, 1, 0, 2, 2.5))
sketch7.addConstraint(Sketcher.Constraint("DistanceX", 0, 2, -1, 1, 25.0))
sketch7.addConstraint(Sketcher.Constraint("DistanceY", -1, 1, 0, 2, 82.0))
sketch7.addConstraint(Sketcher.Constraint("DistanceX", 4, 2, -1, 1, 58.0))
sketch7.addConstraint(Sketcher.Constraint("DistanceY", -1, 1, 4, 2, 71.0))
sketch7.addConstraint(Sketcher.Constraint("DistanceX", 5, 1, 5, 2, 3.05))
sketch7.setExpression("Constraints[16]", "Params.sketch7_width")
sketch7.setExpression("Constraints[17]", "Params.sketch7_height")
sketch7.setExpression("Constraints[18]", "Params.sketch7_height2")
sketch7.setExpression("Constraints[23]", "Params.sketch7_width2")
pocket6 = doc.addObject("PartDesign::Pocket", "Pocket005")
body.addObject(pocket6)
pocket6.Profile = sketch7
pocket6.setExpression("Length", "Params.pocket6_length")
pocket6.Reversed = True
doc.recompute()

fillet = doc.addObject("PartDesign::Fillet", "Fillet")
body.addObject(fillet)
fillet.Base = (pocket6, edges_at(pocket6, [
    (73, 1.5, 35),
    (73, 1.5, 85),
    (-73, 1.5, 85),
    (-73, 1.5, 35),
]))
fillet.setExpression("Radius", "Params.fillet_radius")

sketch8 = doc.addObject("Sketcher::SketchObject", "Sketch007")
body.addObject(sketch8)
sketch8.AttachmentSupport = (doc.XZ_Plane, [""])
sketch8.MapMode = "FlatFace"
sketch8.AttachmentOffset = App.Placement(V(0, 0, -3), App.Rotation())
sketch8.addGeometry(Part.LineSegment(V(70.5, 67, 0), V(70.5, 77, 0)), False)
sketch8.addGeometry(Part.LineSegment(V(70.5, 77, 0), V(72.5, 77, 0)), False)
sketch8.addGeometry(Part.LineSegment(V(72.5, 77, 0), V(72.5, 67, 0)), False)
sketch8.addGeometry(Part.LineSegment(V(72.5, 67, 0), V(70.5, 67, 0)), False)
sketch8.addGeometry(Part.LineSegment(V(-72.5, 67, 0), V(-72.5, 77, 0)), False)
sketch8.addGeometry(Part.LineSegment(V(-72.5, 77, 0), V(-70.5, 77, 0)), False)
sketch8.addGeometry(Part.LineSegment(V(-70.5, 77, 0), V(-70.5, 67, 0)), False)
sketch8.addGeometry(Part.LineSegment(V(-70.5, 67, 0), V(-72.5, 67, 0)), False)
sketch8.addConstraint(Sketcher.Constraint("Coincident", 0, 2, 1, 1))
sketch8.addConstraint(Sketcher.Constraint("Coincident", 1, 2, 2, 1))
sketch8.addConstraint(Sketcher.Constraint("Coincident", 2, 2, 3, 1))
sketch8.addConstraint(Sketcher.Constraint("Coincident", 3, 2, 0, 1))
sketch8.addConstraint(Sketcher.Constraint("Coincident", 4, 2, 5, 1))
sketch8.addConstraint(Sketcher.Constraint("Coincident", 5, 2, 6, 1))
sketch8.addConstraint(Sketcher.Constraint("Coincident", 6, 2, 7, 1))
sketch8.addConstraint(Sketcher.Constraint("Coincident", 7, 2, 4, 1))
sketch8.addConstraint(Sketcher.Constraint("Vertical", 0))
sketch8.addConstraint(Sketcher.Constraint("Horizontal", 1))
sketch8.addConstraint(Sketcher.Constraint("Vertical", 2))
sketch8.addConstraint(Sketcher.Constraint("Horizontal", 3))
sketch8.addConstraint(Sketcher.Constraint("Vertical", 4))
sketch8.addConstraint(Sketcher.Constraint("Horizontal", 5))
sketch8.addConstraint(Sketcher.Constraint("Vertical", 6))
sketch8.addConstraint(Sketcher.Constraint("Horizontal", 7))
sketch8.addConstraint(Sketcher.Constraint("Symmetric", 1, 2, 4, 2, -2))
sketch8.addConstraint(Sketcher.Constraint("Symmetric", 3, 2, 6, 2, -2))
sketch8.addConstraint(Sketcher.Constraint("DistanceX", 1, 1, 1, 2, 2.0))
sketch8.addConstraint(Sketcher.Constraint("DistanceY", 0, 1, 0, 2, 10.0))
sketch8.addConstraint(Sketcher.Constraint("DistanceY", -1, 1, 0, 2, 77.0))
sketch8.addConstraint(Sketcher.Constraint("DistanceX", 4, 2, 0, 2, 143.0))
sketch8.setExpression("Constraints[18]", "Params.sketch8_width")
sketch8.setExpression("Constraints[19]", "Params.sketch8_height")
pocket7 = doc.addObject("PartDesign::Pocket", "Pocket006")
body.addObject(pocket7)
pocket7.Profile = sketch8
pocket7.setExpression("Length", "Params.pocket7_length")
pocket7.Reversed = True

doc.recompute()
